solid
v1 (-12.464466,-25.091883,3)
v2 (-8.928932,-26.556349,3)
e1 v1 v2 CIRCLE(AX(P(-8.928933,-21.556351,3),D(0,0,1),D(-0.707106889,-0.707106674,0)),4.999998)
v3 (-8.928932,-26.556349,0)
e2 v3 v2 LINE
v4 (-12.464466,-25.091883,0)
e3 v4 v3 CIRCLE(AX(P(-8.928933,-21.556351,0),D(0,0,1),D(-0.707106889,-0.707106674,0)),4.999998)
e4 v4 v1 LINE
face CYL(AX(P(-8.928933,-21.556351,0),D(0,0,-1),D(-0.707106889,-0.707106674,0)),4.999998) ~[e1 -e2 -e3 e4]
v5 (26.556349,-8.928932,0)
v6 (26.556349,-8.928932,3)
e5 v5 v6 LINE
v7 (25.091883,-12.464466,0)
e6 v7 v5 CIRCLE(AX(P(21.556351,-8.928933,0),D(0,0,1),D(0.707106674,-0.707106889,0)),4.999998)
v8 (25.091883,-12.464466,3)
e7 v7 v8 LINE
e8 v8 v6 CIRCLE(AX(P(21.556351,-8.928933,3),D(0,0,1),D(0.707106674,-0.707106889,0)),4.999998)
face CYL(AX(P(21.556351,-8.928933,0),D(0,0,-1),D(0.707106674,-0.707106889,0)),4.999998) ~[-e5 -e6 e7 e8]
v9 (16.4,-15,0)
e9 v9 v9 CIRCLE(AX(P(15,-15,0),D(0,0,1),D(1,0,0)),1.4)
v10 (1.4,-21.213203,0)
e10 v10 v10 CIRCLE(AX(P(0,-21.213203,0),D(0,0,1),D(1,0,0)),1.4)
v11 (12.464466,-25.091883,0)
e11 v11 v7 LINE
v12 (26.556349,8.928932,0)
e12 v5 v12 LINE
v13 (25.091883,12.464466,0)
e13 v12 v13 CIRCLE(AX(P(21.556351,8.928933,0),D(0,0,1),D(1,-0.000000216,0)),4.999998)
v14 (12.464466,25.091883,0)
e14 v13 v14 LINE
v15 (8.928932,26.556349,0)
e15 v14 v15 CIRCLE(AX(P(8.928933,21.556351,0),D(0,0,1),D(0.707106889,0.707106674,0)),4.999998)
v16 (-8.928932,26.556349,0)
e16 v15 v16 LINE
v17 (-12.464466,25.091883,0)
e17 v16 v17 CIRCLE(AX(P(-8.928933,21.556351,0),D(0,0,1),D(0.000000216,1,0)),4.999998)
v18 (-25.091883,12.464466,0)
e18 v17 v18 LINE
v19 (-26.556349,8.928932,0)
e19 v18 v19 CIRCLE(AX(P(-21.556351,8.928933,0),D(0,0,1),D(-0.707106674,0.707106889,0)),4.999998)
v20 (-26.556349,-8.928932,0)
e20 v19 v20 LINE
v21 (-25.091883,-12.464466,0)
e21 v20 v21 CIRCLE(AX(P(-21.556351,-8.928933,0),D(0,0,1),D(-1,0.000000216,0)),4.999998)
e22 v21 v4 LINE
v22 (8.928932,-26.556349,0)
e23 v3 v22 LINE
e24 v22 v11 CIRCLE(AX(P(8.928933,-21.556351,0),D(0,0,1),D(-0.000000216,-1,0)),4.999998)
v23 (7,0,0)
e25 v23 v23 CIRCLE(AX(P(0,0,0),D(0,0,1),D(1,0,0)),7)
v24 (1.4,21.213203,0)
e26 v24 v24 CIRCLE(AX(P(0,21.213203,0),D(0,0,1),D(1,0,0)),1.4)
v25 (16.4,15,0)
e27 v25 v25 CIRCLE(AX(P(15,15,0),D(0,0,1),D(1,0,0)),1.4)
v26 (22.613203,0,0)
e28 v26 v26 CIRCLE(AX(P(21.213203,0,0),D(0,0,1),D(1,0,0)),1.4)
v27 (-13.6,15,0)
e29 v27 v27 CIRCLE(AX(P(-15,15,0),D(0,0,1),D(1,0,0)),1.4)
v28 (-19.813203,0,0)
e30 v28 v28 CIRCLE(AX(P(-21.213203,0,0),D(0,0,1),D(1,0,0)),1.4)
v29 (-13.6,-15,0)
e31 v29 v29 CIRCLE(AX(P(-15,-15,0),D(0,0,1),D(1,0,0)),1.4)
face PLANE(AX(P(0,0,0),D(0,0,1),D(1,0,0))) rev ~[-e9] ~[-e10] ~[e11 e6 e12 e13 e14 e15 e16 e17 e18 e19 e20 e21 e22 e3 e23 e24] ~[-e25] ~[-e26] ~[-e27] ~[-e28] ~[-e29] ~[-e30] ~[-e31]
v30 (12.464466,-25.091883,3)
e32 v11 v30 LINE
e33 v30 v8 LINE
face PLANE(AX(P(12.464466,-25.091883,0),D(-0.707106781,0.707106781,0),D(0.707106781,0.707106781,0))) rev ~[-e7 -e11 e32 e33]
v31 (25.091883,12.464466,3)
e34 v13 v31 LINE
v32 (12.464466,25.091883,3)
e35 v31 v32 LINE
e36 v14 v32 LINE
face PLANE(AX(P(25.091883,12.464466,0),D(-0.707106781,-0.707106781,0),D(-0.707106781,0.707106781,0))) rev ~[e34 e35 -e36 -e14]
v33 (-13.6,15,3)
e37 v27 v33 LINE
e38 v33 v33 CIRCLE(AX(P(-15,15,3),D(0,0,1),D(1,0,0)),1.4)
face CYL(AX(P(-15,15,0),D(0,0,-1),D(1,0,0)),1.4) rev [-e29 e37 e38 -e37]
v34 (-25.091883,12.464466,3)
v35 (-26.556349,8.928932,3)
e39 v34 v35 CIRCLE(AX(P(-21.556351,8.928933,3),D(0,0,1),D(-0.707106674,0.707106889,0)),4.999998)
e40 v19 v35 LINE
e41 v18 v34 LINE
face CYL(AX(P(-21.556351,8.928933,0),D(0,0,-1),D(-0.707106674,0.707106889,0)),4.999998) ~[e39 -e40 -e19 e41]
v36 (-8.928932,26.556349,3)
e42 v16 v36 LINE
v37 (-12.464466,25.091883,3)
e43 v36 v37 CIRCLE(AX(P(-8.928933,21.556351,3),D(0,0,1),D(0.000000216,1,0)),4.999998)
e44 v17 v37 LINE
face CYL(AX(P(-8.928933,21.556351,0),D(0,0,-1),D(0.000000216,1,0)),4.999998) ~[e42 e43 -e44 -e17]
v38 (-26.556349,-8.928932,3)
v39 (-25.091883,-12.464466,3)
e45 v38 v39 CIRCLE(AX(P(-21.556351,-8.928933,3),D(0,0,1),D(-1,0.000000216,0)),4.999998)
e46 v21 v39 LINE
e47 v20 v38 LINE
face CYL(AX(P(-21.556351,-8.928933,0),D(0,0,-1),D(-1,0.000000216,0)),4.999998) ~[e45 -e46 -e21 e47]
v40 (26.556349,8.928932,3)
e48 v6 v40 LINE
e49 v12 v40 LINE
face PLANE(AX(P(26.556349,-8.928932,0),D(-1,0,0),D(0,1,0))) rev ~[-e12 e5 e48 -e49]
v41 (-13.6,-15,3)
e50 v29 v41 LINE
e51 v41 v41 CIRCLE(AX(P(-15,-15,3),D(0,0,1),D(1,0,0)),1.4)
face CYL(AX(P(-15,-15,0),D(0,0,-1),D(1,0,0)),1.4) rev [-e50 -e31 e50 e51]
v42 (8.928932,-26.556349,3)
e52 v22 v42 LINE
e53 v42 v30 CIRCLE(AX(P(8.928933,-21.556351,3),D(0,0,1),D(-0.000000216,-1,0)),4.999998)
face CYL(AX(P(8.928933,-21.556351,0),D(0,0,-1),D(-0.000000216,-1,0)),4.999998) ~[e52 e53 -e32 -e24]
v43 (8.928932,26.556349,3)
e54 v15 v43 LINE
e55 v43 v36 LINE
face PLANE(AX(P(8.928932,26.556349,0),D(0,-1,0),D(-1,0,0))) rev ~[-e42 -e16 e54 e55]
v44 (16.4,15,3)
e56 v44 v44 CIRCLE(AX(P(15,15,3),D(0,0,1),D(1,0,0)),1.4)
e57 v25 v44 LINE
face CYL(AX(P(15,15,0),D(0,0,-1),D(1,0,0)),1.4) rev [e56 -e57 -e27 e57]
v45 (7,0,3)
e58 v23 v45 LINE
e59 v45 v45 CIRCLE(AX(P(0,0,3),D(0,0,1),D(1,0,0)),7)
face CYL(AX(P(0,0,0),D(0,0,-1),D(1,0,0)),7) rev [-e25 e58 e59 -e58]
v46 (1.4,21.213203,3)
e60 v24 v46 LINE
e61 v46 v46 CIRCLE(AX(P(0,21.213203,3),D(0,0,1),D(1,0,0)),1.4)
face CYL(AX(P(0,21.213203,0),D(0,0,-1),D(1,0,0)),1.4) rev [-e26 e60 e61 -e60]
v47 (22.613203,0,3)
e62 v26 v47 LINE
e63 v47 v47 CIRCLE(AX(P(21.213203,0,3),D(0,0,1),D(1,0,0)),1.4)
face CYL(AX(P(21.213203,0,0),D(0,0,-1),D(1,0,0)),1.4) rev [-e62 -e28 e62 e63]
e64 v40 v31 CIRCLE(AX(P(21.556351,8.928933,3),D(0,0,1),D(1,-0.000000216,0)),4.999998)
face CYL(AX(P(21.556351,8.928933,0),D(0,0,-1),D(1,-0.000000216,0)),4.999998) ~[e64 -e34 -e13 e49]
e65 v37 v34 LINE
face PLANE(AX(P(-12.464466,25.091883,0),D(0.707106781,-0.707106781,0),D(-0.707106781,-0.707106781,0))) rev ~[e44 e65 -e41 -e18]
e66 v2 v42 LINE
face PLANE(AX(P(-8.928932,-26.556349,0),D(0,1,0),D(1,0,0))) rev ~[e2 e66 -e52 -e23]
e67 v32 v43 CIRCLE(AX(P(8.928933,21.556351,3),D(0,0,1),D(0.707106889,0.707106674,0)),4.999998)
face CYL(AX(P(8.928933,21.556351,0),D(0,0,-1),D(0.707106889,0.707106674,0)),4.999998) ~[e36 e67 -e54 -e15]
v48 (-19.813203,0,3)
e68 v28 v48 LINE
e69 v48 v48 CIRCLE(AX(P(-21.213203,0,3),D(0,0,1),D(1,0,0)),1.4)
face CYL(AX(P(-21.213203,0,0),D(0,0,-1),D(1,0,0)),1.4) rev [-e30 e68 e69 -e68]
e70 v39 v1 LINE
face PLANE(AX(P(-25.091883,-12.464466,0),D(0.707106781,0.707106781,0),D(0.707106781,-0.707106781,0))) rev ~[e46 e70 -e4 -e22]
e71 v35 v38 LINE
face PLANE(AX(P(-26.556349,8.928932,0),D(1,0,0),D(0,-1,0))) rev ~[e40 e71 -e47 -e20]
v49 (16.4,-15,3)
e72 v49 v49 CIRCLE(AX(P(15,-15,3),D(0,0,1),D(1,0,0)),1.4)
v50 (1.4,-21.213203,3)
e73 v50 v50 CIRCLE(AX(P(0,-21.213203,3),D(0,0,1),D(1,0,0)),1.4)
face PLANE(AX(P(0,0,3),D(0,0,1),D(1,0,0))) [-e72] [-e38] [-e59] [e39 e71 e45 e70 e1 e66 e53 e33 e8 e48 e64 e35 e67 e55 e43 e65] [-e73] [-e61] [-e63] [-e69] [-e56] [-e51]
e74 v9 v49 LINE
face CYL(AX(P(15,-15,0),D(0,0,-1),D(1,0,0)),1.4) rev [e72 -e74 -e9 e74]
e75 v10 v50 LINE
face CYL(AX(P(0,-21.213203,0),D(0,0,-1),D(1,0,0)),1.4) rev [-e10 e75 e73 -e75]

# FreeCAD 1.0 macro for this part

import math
import FreeCAD as App
import Part
import Sketcher

V = App.Vector

doc = App.newDocument("Part")
body = doc.addObject("PartDesign::Body", "Body")

# Sketch on XY plane
sketch1 = body.newObject("Sketcher::SketchObject", "Sketch")
sketch1.AttachmentSupport = (doc.getObject("XY_Plane"), [""])
sketch1.MapMode = "FlatFace"
sketch1.addGeometry([
    Part.LineSegment(V(8.928932, 26.556349, 0), V(-8.928932, 26.556349, 0)),  # 0
    Part.ArcOfCircle(Part.Circle(V(-8.928933, 21.556351, 0), V(0, 0, 1), 4.999998), math.radians(89.999988), math.radians(135.000009)),  # 1
    Part.LineSegment(V(-12.464466, 25.091883, 0), V(-25.091883, 12.464466, 0)),  # 2
    Part.ArcOfCircle(Part.Circle(V(-21.556351, 8.928933, 0), V(0, 0, 1), 4.999998), math.radians(134.999991), math.radians(180.000012)),  # 3
    Part.LineSegment(V(-26.556349, 8.928932, 0), V(-26.556349, -8.928932, 0)),  # 4
    Part.ArcOfCircle(Part.Circle(V(-21.556351, -8.928933, 0), V(0, 0, 1), 4.999998), math.radians(179.999988), math.radians(225.000009)),  # 5
    Part.LineSegment(V(-25.091883, -12.464466, 0), V(-12.464466, -25.091883, 0)),  # 6
    Part.ArcOfCircle(Part.Circle(V(-8.928933, -21.556351, 0), V(0, 0, 1), 4.999998), math.radians(-135.000009), math.radians(-89.999988)),  # 7
    Part.LineSegment(V(-8.928932, -26.556349, 0), V(8.928932, -26.556349, 0)),  # 8
    Part.ArcOfCircle(Part.Circle(V(8.928933, -21.556351, 0), V(0, 0, 1), 4.999998), math.radians(-90.000012), math.radians(-44.999991)),  # 9
    Part.LineSegment(V(12.464466, -25.091883, 0), V(25.091883, -12.464466, 0)),  # 10
    Part.ArcOfCircle(Part.Circle(V(21.556351, -8.928933, 0), V(0, 0, 1), 4.999998), math.radians(-45.000009), math.radians(0.000012)),  # 11
    Part.LineSegment(V(26.556349, -8.928932, 0), V(26.556349, 8.928932, 0)),  # 12
    Part.ArcOfCircle(Part.Circle(V(21.556351, 8.928933, 0), V(0, 0, 1), 4.999998), math.radians(-0.000012), math.radians(45.000009)),  # 13
    Part.LineSegment(V(25.091883, 12.464466, 0), V(12.464466, 25.091883, 0)),  # 14
    Part.ArcOfCircle(Part.Circle(V(8.928933, 21.556351, 0), V(0, 0, 1), 4.999998), math.radians(44.999991), math.radians(90.000012)),  # 15
    Part.Circle(V(-15, -15, 0), V(0, 0, 1), 1.4),  # 16
    Part.Circle(V(0, -21.213203, 0), V(0, 0, 1), 1.4),  # 17
    Part.Circle(V(-21.213203, 0, 0), V(0, 0, 1), 1.4),  # 18
    Part.Circle(V(0, 0, 0), V(0, 0, 1), 7),  # 19
    Part.Circle(V(15, -15, 0), V(0, 0, 1), 1.4),  # 20
    Part.Circle(V(21.213203, 0, 0), V(0, 0, 1), 1.4),  # 21
    Part.Circle(V(-15, 15, 0), V(0, 0, 1), 1.4),  # 22
    Part.Circle(V(0, 21.213203, 0), V(0, 0, 1), 1.4),  # 23
    Part.Circle(V(15, 15, 0), V(0, 0, 1), 1.4),  # 24
], False)
sketch1.addConstraint([
    Sketcher.Constraint("Tangent", 0, 2, 1, 1),
    Sketcher.Constraint("Tangent", 1, 2, 2, 1),
    Sketcher.Constraint("Tangent", 2, 2, 3, 1),
    Sketcher.Constraint("Tangent", 3, 2, 4, 1),
    Sketcher.Constraint("Tangent", 4, 2, 5, 1),
    Sketcher.Constraint("Tangent", 5, 2, 6, 1),
    Sketcher.Constraint("Tangent", 6, 2, 7, 1),
    Sketcher.Constraint("Tangent", 7, 2, 8, 1),
    Sketcher.Constraint("Tangent", 8, 2, 9, 1),
    Sketcher.Constraint("Tangent", 9, 2, 10, 1),
    Sketcher.Constraint("Tangent", 10, 2, 11, 1),
    Sketcher.Constraint("Tangent", 11, 2, 12, 1),
    Sketcher.Constraint("Tangent", 12, 2, 13, 1),
    Sketcher.Constraint("Tangent", 13, 2, 14, 1),
    Sketcher.Constraint("Tangent", 14, 2, 15, 1),
    Sketcher.Constraint("Tangent", 15, 2, 0, 1),
    Sketcher.Constraint("Horizontal", 0),
    Sketcher.Constraint("Vertical", 4),
    Sketcher.Constraint("Horizontal", 8),
    Sketcher.Constraint("Vertical", 12),
    Sketcher.Constraint("Coincident", 19, 3, -1, 1),
    Sketcher.Constraint("Equal", 1, 3),
    Sketcher.Constraint("Equal", 3, 5),
    Sketcher.Constraint("Equal", 5, 7),
    Sketcher.Constraint("Equal", 7, 9),
    Sketcher.Constraint("Equal", 9, 11),
    Sketcher.Constraint("Equal", 11, 13),
    Sketcher.Constraint("Equal", 13, 15),
    Sketcher.Constraint("Equal", 16, 17),
    Sketcher.Constraint("Equal", 17, 18),
    Sketcher.Constraint("Equal", 18, 20),
    Sketcher.Constraint("Equal", 20, 21),
    Sketcher.Constraint("Equal", 21, 22),
    Sketcher.Constraint("Equal", 22, 23),
    Sketcher.Constraint("Equal", 23, 24),
    Sketcher.Constraint("Symmetric", 1, 3, 9, 3, -1, 1),
    Sketcher.Constraint("Symmetric", 3, 3, 11, 3, -1, 1),
    Sketcher.Constraint("Symmetric", 18, 3, 21, 3, -1, 1),
    Sketcher.Constraint("Symmetric", 20, 3, 22, 3, -1, 1),
    Sketcher.Constraint("Symmetric", 17, 3, 23, 3, -1, 1),
    Sketcher.Constraint("Symmetric", 16, 3, 24, 3, -1, 1),
    Sketcher.Constraint("Symmetric", 5, 2, 13, 2, -1, 1),
    Sketcher.Constraint("Symmetric", 16, 3, 20, 3, -2),
    Sketcher.Constraint("Symmetric", 6, 2, 9, 2, -2),
    Sketcher.Constraint("PointOnObject", 17, 3, -2),
    Sketcher.Constraint("PointOnObject", 18, 3, -1),
    Sketcher.Constraint("Perpendicular", 2, 6),
    Sketcher.Constraint("Equal", 8, 4),
    Sketcher.Constraint("Diameter", 19, 14.0),
    Sketcher.Constraint("Diameter", 16, 2.8),
    Sketcher.Constraint("DistanceX", 16, 3, -1, 1, 15.0),
    Sketcher.Constraint("DistanceY", 16, 3, -1, 1, 15.0),
    Sketcher.Constraint("Radius", 1, 4.999998),
    Sketcher.Constraint("DistanceX", 0, 2, 0, 1, 17.857864),
    Sketcher.Constraint("DistanceY", -1, 1, 1, 3, 21.556351),
    Sketcher.Constraint("DistanceY", 7, 3, 17, 3, 0.343148),
    Sketcher.Constraint("DistanceX", 3, 3, 18, 3, 0.343148),
])
pad1 = body.newObject("PartDesign::Pad", "Pad")
pad1.Profile = sketch1
pad1.Length = 3

doc.recompute()
